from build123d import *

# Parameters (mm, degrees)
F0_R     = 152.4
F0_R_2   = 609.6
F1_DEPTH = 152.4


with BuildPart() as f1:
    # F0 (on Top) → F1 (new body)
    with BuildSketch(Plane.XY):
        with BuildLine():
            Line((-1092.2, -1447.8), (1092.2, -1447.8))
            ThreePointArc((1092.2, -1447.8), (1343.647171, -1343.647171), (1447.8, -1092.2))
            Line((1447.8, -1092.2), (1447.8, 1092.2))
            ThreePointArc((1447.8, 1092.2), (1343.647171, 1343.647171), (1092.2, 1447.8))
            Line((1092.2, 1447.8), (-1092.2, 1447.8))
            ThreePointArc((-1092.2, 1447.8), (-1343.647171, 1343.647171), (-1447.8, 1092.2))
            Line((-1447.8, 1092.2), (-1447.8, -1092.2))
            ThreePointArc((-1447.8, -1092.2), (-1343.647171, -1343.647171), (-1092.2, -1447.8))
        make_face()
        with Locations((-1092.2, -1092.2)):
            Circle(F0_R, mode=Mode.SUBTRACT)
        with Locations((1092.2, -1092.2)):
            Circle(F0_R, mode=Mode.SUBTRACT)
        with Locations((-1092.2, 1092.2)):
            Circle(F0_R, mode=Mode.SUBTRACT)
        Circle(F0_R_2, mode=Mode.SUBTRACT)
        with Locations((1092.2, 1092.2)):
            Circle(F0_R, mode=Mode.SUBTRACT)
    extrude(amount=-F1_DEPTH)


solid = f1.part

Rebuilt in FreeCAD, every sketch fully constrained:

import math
import FreeCAD as App
import Part
import Sketcher
Q = App.Units.Quantity

doc = App.newDocument("Part")
body = doc.addObject("PartDesign::Body", "Body")

# Sketch on XY plane
sketch1 = doc.addObject("Sketcher::SketchObject", "Sketch")
body.addObject(sketch1)
sketch1.AttachmentSupport = (doc.XY_Plane, [""])
sketch1.MapMode = "FlatFace"
sketch1.addGeometry([
    Part.LineSegment(App.Vector(-1092.2, -1447.8, 0), App.Vector(1092.2, -1447.8, 0)),  # 0
    Part.ArcOfCircle(Part.Circle(App.Vector(1092.199999, -1092.199999, 0), App.Vector(0, 0, 1), 355.600001), math.radians(-90), math.radians(0)),  # 1
    Part.LineSegment(App.Vector(1447.8, -1092.2, 0), App.Vector(1447.8, 1092.2, 0)),  # 2
    Part.ArcOfCircle(Part.Circle(App.Vector(1092.199999, 1092.199999, 0), App.Vector(0, 0, 1), 355.600001), math.radians(0), math.radians(90)),  # 3
    Part.LineSegment(App.Vector(1092.2, 1447.8, 0), App.Vector(-1092.2, 1447.8, 0)),  # 4
    Part.ArcOfCircle(Part.Circle(App.Vector(-1092.199999, 1092.199999, 0), App.Vector(0, 0, 1), 355.600001), math.radians(90), math.radians(180)),  # 5
    Part.LineSegment(App.Vector(-1447.8, 1092.2, 0), App.Vector(-1447.8, -1092.2, 0)),  # 6
    Part.ArcOfCircle(Part.Circle(App.Vector(-1092.199999, -1092.199999, 0), App.Vector(0, 0, 1), 355.600001), math.radians(-180), math.radians(-90)),  # 7
    Part.Circle(App.Vector(-1092.2, -1092.2, 0), App.Vector(0, 0, 1), 152.4),  # 8
    Part.Circle(App.Vector(1092.2, -1092.2, 0), App.Vector(0, 0, 1), 152.4),  # 9
    Part.Circle(App.Vector(-1092.2, 1092.2, 0), App.Vector(0, 0, 1), 152.4),  # 10
    Part.Circle(App.Vector(0, 0, 0), App.Vector(0, 0, 1), 609.6),  # 11
    Part.Circle(App.Vector(1092.2, 1092.2, 0), App.Vector(0, 0, 1), 152.4),  # 12
], False)
sketch1.addConstraint([
    Sketcher.Constraint("Tangent", 0, 2, 1, 1),
    Sketcher.Constraint("Tangent", 1, 2, 2, 1),
    Sketcher.Constraint("Tangent", 2, 2, 3, 1),
    Sketcher.Constraint("Tangent", 3, 2, 4, 1),
    Sketcher.Constraint("Tangent", 4, 2, 5, 1),
    Sketcher.Constraint("Tangent", 5, 2, 6, 1),
    Sketcher.Constraint("Tangent", 6, 2, 7, 1),
    Sketcher.Constraint("Tangent", 7, 2, 0, 1),
    Sketcher.Constraint("Horizontal", 0),
    Sketcher.Constraint("Vertical", 2),
    Sketcher.Constraint("Horizontal", 4),
    Sketcher.Constraint("Vertical", 6),
    Sketcher.Constraint("Coincident", 11, 3, -1, 1),
    Sketcher.Constraint("Coincident", 8, 3, 7, 3),
    Sketcher.Constraint("Coincident", 9, 3, 1, 3),
    Sketcher.Constraint("Coincident", 10, 3, 5, 3),
    Sketcher.Constraint("Coincident", 12, 3, 3, 3),
    Sketcher.Constraint("Equal", 1, 3),
    Sketcher.Constraint("Equal", 3, 5),
    Sketcher.Constraint("Equal", 5, 7),
    Sketcher.Constraint("Equal", 8, 9),
    Sketcher.Constraint("Equal", 9, 10),
    Sketcher.Constraint("Equal", 10, 12),
    Sketcher.Constraint("Symmetric", 1, 3, 5, 3, -1, 1),
    Sketcher.Constraint("Equal", 4, 2),
    Sketcher.Constraint("Diameter", 8, Q("12 in")),
    Sketcher.Constraint("Diameter", 11, Q("48 in")),
    Sketcher.Constraint("Radius", 1, Q("14.0000001 in")),
    Sketcher.Constraint("DistanceX", 0, 1, 0, 2, Q("86 in")),
])
pad1 = doc.addObject("PartDesign::Pad", "Pad")
body.addObject(pad1)
pad1.Profile = sketch1
pad1.Length = Q("6 in")
pad1.Reversed = True

doc.recompute()
